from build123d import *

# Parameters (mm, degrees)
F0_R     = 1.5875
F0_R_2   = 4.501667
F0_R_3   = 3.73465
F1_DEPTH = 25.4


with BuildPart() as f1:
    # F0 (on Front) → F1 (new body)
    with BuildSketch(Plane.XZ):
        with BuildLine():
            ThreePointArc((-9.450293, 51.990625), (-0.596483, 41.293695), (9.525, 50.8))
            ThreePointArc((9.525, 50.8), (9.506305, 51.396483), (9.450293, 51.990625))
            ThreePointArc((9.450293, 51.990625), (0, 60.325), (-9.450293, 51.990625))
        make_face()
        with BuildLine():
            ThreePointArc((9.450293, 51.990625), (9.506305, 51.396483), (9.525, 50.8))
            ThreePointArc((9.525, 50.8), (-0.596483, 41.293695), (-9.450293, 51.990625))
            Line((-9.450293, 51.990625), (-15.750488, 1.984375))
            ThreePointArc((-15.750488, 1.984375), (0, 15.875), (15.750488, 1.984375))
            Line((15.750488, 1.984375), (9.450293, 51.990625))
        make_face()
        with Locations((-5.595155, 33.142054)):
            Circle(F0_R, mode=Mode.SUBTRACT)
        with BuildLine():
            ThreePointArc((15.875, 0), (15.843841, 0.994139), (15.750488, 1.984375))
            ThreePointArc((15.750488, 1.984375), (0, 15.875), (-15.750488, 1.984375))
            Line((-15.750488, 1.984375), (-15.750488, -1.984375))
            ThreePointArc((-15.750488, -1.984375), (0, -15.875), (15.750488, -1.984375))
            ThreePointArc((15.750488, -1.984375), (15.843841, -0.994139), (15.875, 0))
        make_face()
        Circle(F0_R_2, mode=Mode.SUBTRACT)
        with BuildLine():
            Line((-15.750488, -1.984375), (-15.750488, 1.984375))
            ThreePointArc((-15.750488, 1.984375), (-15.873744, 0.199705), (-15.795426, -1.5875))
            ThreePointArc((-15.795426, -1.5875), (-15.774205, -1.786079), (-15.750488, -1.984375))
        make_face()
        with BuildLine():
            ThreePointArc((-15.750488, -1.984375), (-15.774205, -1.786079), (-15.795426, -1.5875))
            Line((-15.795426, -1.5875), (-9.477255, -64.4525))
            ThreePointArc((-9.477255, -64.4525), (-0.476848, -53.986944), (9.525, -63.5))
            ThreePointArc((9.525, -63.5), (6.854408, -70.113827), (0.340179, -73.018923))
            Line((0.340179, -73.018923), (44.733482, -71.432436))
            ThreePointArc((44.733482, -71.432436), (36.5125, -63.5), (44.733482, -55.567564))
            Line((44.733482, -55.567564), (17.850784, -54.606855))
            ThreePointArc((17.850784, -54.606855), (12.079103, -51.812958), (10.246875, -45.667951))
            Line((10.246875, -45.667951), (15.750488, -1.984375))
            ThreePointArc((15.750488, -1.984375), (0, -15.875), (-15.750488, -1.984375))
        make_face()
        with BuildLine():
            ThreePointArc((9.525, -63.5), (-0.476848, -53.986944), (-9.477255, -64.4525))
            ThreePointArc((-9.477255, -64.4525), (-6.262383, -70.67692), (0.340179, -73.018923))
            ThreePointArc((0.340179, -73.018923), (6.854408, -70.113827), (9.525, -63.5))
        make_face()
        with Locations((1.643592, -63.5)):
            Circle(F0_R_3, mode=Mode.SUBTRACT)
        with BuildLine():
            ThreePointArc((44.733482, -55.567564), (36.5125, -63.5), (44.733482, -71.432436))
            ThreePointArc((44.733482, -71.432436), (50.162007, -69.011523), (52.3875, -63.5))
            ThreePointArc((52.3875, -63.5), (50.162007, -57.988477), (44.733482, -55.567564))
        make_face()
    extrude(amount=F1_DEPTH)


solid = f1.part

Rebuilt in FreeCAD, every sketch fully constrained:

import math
import FreeCAD as App
import Part
import Sketcher
Q = App.Units.Quantity

doc = App.newDocument("Part")
body = doc.addObject("PartDesign::Body", "Body")

# Sketch on XZ plane
sketch1 = body.newObject("Sketcher::SketchObject", "Sketch")
sketch1.AttachmentSupport = (doc.getObject("XZ_Plane"), [""])
sketch1.MapMode = "FlatFace"
sketch1.addGeometry([
    Part.ArcOfCircle(Part.Circle(App.Vector(0, 50.8, 0), App.Vector(0, 0, 1), 9.525), math.radians(7.180756), math.radians(172.819244)),  # 0
    Part.LineSegment(App.Vector(-9.450293, 51.990625, 0), App.Vector(-15.750488, 1.984375, 0)),  # 1
    Part.ArcOfCircle(Part.Circle(App.Vector(-0.000015, -0.000003, 0), App.Vector(0, 0, 1), 15.874985), math.radians(172.819227), math.radians(185.739165)),  # 2
    Part.LineSegment(App.Vector(-15.795426, -1.5875, 0), App.Vector(-9.477255, -64.4525, 0)),  # 3
    Part.ArcOfCircle(Part.Circle(App.Vector(-0.000001, -63.500001, 0), App.Vector(0, 0, 1), 9.524999), math.radians(-174.260832), math.radians(-87.953281)),  # 4
    Part.LineSegment(App.Vector(0.340179, -73.018923, 0), App.Vector(44.733482, -71.432436, 0)),  # 5
    Part.ArcOfCircle(Part.Circle(App.Vector(44.450001, -63.500001, 0), App.Vector(0, 0, 1), 7.937499), math.radians(-87.953294), math.radians(0.000005)),  # 6
    Part.ArcOfCircle(Part.Circle(App.Vector(44.450001, -63.499999, 0), App.Vector(0, 0, 1), 7.937499), math.radians(-0.000005), math.radians(87.953294)),  # 7
    Part.LineSegment(App.Vector(44.733482, -55.567564, 0), App.Vector(17.850784, -54.606855, 0)),  # 8
    Part.ArcOfCircle(Part.Circle(App.Vector(18.134721, -46.661726, 0), App.Vector(0, 0, 1), 7.950201), math.radians(172.819246), math.radians(267.953281)),  # 9
    Part.LineSegment(App.Vector(10.246875, -45.667951, 0), App.Vector(15.750488, -1.984375, 0)),  # 10
    Part.ArcOfCircle(Part.Circle(App.Vector(-0.000171, 0.000013, 0), App.Vector(0, 0, 1), 15.875171), math.radians(-7.180725), math.radians(-0.000047)),  # 11
    Part.ArcOfCircle(Part.Circle(App.Vector(-0.000171, -0.000013, 0), App.Vector(0, 0, 1), 15.875171), math.radians(0.000047), math.radians(7.180725)),  # 12
    Part.LineSegment(App.Vector(15.750488, 1.984375, 0), App.Vector(9.450293, 51.990625, 0)),  # 13
    Part.Circle(App.Vector(1.643592, -63.5, 0), App.Vector(0, 0, 1), 3.73465),  # 14
    Part.Circle(App.Vector(-5.595155, 33.142054, 0), App.Vector(0, 0, 1), 1.5875),  # 15
    Part.Circle(App.Vector(0, 0, 0), App.Vector(0, 0, 1), 4.501667),  # 16
], False)
sketch1.addConstraint([
    Sketcher.Constraint("Coincident", 0, 2, 1, 1),
    Sketcher.Constraint("Coincident", 1, 2, 2, 1),
    Sketcher.Constraint("Coincident", 2, 2, 3, 1),
    Sketcher.Constraint("Coincident", 3, 2, 4, 1),
    Sketcher.Constraint("Coincident", 4, 2, 5, 1),
    Sketcher.Constraint("Coincident", 5, 2, 6, 1),
    Sketcher.Constraint("Coincident", 6, 2, 7, 1),
    Sketcher.Constraint("Coincident", 7, 2, 8, 1),
    Sketcher.Constraint("Coincident", 8, 2, 9, 2),
    Sketcher.Constraint("Coincident", 9, 1, 10, 1),
    Sketcher.Constraint("Coincident", 10, 2, 11, 1),
    Sketcher.Constraint("Coincident", 11, 2, 12, 1),
    Sketcher.Constraint("Coincident", 12, 2, 13, 1),
    Sketcher.Constraint("Coincident", 13, 2, 0, 1),
    Sketcher.Constraint("Coincident", 16, 3, -1, 1),
    Sketcher.Constraint("Coincident", 7, 3, 6, 3),
    Sketcher.Constraint("PointOnObject", 0, 3, -2),
    Sketcher.Constraint("PointOnObject", 4, 3, -2),
    Sketcher.Constraint("PointOnObject", 11, 2, -1),
    Sketcher.Constraint("Diameter", 15, Q("0.125 in")),
    Sketcher.Constraint("DistanceY", -1, 1, 0, 3, Q("2 in")),
    Sketcher.Constraint("Radius", 0, Q("0.375 in")),
    Sketcher.Constraint("Radius", 4, Q("0.375 in")),
    Sketcher.Constraint("Radius", 6, Q("0.3125 in")),
    Sketcher.Constraint("Radius", 9, Q("0.313 in")),
    Sketcher.Constraint("DistanceY", 2, 3, 0, 3, Q("2.0000001 in")),
    Sketcher.Constraint("DistanceY", 4, 3, -1, 1, Q("2.5 in")),
    Sketcher.Constraint("DistanceY", 6, 3, -1, 1, Q("2.5 in")),
    Sketcher.Constraint("DistanceY", 14, 3, -1, 1, Q("2.5 in")),
    Sketcher.Constraint("DistanceY", 6, 2, -1, 1, Q("2.5 in")),
    Sketcher.Constraint("Diameter", 14, Q("7.4693 mm")),
    Sketcher.Constraint("DistanceX", -1, 1, 6, 3, Q("1.75 in")),
    Sketcher.Constraint("DistanceY", -1, 1, 0, 2, Q("2.046875 in")),
    Sketcher.Constraint("DistanceY", -1, 1, 1, 2, Q("0.078125 in")),
    Sketcher.Constraint("DistanceY", 2, 2, -1, 1, Q("0.0625 in")),
    Sketcher.Constraint("DistanceY", 10, 2, -1, 1, Q("0.078125 in")),
    Sketcher.Constraint("DistanceX", -1, 1, 11, 2, Q("0.625 in")),
    Sketcher.Constraint("DistanceY", -1, 1, 12, 2, Q("0.078125 in")),
    Sketcher.Constraint("DistanceY", -1, 1, 13, 2, Q("2.046875 in")),
    Sketcher.Constraint("Radius", 11, Q("15.875171 mm")),
    Sketcher.Constraint("Radius", 12, Q("15.875171 mm")),
    Sketcher.Constraint("Diameter", 16, Q("9.003334 mm")),
    Sketcher.Constraint("DistanceY", 3, 2, -1, 1, Q("2.5375 in")),
    Sketcher.Constraint("Radius", 2, Q("15.874985 mm")),
    Sketcher.Constraint("DistanceX", 8, 2, 7, 2, Q("26.882698 mm")),
    Sketcher.Constraint("Distance", 8, Q("26.899859 mm")),
    Sketcher.Constraint("DistanceX", -1, 1, 9, 3, Q("18.134721 mm")),
    Sketcher.Constraint("DistanceX", -1, 1, 14, 3, Q("1.643592 mm")),
    Sketcher.Constraint("DistanceX", 1, 2, -1, 1, Q("15.750488 mm")),
    Sketcher.Constraint("DistanceX", -1, 1, 4, 2, Q("0.340179 mm")),
    Sketcher.Constraint("DistanceY", 9, 1, -1, 1, Q("45.667951 mm")),
    Sketcher.Constraint("DistanceX", -1, 1, 10, 2, Q("15.750488 mm")),
    Sketcher.Constraint("DistanceX", -1, 1, 12, 2, Q("15.750488 mm")),
    Sketcher.Constraint("DistanceY", 11, 3, 15, 3, Q("33.142041 mm")),
    Sketcher.Constraint("DistanceX", 15, 3, 2, 3, Q("5.59514 mm")),
    Sketcher.Constraint("DistanceX", 6, 3, 5, 2, Q("0.283481 mm")),
    Sketcher.Constraint("DistanceX", 7, 3, 7, 2, Q("0.283481 mm")),
])
pad1 = body.newObject("PartDesign::Pad", "Pad")
pad1.Profile = sketch1
pad1.Length = Q("1 in")

doc.recompute()
